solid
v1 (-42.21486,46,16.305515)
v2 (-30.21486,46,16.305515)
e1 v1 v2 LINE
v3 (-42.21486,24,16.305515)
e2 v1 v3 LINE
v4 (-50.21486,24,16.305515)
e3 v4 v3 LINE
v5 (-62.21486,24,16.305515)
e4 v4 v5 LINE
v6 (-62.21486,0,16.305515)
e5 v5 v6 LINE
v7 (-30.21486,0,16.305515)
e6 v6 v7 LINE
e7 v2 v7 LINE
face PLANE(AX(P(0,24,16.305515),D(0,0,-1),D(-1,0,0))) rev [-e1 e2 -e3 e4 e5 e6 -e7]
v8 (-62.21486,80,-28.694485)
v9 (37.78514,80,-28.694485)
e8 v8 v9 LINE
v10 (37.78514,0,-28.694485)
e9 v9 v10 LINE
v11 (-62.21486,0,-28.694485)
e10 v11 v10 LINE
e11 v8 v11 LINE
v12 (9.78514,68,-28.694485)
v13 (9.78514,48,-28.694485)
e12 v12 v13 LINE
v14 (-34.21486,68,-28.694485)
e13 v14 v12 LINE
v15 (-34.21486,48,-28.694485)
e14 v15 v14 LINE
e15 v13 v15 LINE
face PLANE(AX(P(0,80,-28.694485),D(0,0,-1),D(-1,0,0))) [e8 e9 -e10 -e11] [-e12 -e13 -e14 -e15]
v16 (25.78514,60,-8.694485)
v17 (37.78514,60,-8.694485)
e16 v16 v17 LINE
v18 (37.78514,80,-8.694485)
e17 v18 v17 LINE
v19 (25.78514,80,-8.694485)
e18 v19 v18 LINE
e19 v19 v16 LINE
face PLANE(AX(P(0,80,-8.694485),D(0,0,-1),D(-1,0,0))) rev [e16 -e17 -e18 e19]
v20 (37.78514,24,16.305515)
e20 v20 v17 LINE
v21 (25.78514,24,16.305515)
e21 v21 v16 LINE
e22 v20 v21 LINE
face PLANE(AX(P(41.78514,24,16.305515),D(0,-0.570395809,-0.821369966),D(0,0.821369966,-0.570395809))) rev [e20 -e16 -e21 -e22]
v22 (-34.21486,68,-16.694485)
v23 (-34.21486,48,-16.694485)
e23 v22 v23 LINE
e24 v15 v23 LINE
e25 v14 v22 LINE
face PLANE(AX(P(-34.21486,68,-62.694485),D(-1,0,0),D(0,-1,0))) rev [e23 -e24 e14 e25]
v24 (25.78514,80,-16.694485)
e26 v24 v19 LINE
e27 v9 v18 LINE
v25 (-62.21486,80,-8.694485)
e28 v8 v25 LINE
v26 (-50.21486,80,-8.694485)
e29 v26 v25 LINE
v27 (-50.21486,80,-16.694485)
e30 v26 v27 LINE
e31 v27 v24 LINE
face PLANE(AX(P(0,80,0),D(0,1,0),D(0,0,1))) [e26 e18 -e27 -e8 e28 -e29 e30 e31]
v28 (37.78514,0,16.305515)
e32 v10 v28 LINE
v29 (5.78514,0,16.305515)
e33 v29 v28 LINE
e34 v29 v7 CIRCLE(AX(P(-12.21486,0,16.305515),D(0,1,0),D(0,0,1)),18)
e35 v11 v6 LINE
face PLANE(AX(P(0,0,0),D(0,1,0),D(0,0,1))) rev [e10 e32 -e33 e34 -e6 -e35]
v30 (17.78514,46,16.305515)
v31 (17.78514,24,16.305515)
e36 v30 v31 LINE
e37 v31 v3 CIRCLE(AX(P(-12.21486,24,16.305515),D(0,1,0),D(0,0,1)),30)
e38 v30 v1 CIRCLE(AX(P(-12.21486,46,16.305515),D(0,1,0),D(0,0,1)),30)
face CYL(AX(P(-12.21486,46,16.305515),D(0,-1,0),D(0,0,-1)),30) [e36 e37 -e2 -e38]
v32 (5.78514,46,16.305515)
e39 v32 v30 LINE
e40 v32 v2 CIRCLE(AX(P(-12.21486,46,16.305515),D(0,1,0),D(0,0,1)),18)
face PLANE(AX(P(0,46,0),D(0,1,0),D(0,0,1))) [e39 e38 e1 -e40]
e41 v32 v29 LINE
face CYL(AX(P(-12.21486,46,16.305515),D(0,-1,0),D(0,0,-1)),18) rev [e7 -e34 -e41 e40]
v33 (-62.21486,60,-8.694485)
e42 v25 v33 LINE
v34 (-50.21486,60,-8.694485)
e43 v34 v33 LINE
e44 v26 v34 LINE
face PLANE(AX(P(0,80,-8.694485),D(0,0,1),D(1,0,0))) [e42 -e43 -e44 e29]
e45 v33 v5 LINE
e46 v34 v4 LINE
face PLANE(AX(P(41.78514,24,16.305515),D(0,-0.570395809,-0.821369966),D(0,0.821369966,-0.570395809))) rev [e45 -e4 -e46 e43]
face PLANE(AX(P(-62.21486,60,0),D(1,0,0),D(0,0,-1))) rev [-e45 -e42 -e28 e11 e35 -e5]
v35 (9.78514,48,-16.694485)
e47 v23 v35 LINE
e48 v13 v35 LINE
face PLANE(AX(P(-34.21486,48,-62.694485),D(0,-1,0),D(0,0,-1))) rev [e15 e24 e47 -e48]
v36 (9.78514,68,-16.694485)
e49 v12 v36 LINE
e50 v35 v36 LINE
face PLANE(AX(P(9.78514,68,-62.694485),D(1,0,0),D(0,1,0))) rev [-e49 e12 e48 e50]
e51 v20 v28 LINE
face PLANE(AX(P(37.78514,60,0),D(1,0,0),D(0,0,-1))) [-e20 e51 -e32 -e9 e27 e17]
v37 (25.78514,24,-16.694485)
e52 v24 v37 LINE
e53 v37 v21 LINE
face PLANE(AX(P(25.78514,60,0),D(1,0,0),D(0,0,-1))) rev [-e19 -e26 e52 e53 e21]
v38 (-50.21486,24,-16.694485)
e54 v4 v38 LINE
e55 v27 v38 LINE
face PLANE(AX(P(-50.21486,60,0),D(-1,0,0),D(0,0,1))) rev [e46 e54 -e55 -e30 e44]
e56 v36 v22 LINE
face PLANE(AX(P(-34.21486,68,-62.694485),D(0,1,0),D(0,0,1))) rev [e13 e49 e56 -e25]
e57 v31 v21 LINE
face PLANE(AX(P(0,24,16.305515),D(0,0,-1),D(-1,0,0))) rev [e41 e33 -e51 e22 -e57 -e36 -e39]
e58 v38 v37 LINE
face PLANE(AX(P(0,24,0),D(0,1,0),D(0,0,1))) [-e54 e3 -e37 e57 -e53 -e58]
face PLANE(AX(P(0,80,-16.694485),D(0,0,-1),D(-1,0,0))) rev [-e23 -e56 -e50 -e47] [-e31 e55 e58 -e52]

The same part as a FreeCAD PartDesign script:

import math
import FreeCAD as App
import Part
import Sketcher


def add_polygon(sketch, points):
    """Adds a closed chain of lines whose ends are joined by coincident constraints."""
    first, n = sketch.GeometryCount, len(points)
    for a, b in zip(points, points[1:] + points[:1]):
        sketch.addGeometry(Part.LineSegment(App.Vector(*a, 0), App.Vector(*b, 0)), False)
    for i in range(n):
        sketch.addConstraint(Sketcher.Constraint("Coincident", first + i, 2, first + (i + 1) % n, 1))

doc = App.newDocument("Part")
body = doc.addObject("PartDesign::Body", "Body")

sketch1 = body.newObject("Sketcher::SketchObject", "Sketch")
sketch1.AttachmentSupport = (doc.getObject("XZ_Plane"), [""])
sketch1.MapMode = "FlatFace"
sketch1.addGeometry([
    Part.LineSegment(App.Vector(-50.21486, 16.305515, 0), App.Vector(-42.21486, 16.305515, 0)),
    Part.ArcOfCircle(Part.Circle(App.Vector(-12.21486, 16.305515, 0), App.Vector(0, 0, 1), 30), math.radians(180), math.radians(360)),
    Part.LineSegment(App.Vector(17.78514, 16.305515, 0), App.Vector(25.78514, 16.305515, 0)),
    Part.LineSegment(App.Vector(25.78514, 16.305515, 0), App.Vector(25.78514, -16.694485, 0)),
    Part.LineSegment(App.Vector(25.78514, -16.694485, 0), App.Vector(-50.21486, -16.694485, 0)),
    Part.LineSegment(App.Vector(-50.21486, -16.694485, 0), App.Vector(-50.21486, 16.305515, 0)),
], False)
sketch1.addConstraint([
    Sketcher.Constraint("Coincident", 0, 2, 1, 1),
    Sketcher.Constraint("Coincident", 1, 2, 2, 1),
    Sketcher.Constraint("Coincident", 2, 2, 3, 1),
    Sketcher.Constraint("Coincident", 3, 2, 4, 1),
    Sketcher.Constraint("Coincident", 4, 2, 5, 1),
    Sketcher.Constraint("Coincident", 5, 2, 0, 1),
    Sketcher.Constraint("Horizontal", 0),
    Sketcher.Constraint("Horizontal", 2),
    Sketcher.Constraint("Vertical", 3),
    Sketcher.Constraint("Horizontal", 4),
    Sketcher.Constraint("Vertical", 5),
    Sketcher.Constraint("Horizontal", 1, 3, 0, 2),
    Sketcher.Constraint("Horizontal", 0, 2, 1, 2),
    Sketcher.Constraint("Equal", 0, 2),
    Sketcher.Constraint("Radius", 1, 30.0),
    Sketcher.Constraint("DistanceX", 0, 1, 0, 2, 8.0),
    Sketcher.Constraint("DistanceY", 3, 2, 3, 1, 33.0),
    Sketcher.Constraint("DistanceX", 1, 3, -1, 1, 12.21486),
    Sketcher.Constraint("DistanceY", -1, 1, 1, 3, 16.305515),
])
pad1 = body.newObject("PartDesign::Pad", "Pad")
pad1.Profile = sketch1
pad1.Length = 24
pad1.Reversed = True

sketch2 = body.newObject("Sketcher::SketchObject", "Sketch001")
sketch2.AttachmentSupport = (doc.getObject("XZ_Plane"), [""])
sketch2.MapMode = "FlatFace"
add_polygon(sketch2, [(-62.21486, -8.694485), (-62.21486, 16.305515), (-50.21486, 16.305515), (-50.21486, -8.694485)])
add_polygon(sketch2, [(25.78514, -8.694485), (25.78514, 16.305515), (37.78514, 16.305515), (37.78514, -8.694485)])
sketch2.addConstraint([
    Sketcher.Constraint("Vertical", 0),
    Sketcher.Constraint("Horizontal", 1),
    Sketcher.Constraint("Vertical", 2),
    Sketcher.Constraint("Horizontal", 3),
    Sketcher.Constraint("Vertical", 4),
    Sketcher.Constraint("Horizontal", 5),
    Sketcher.Constraint("Vertical", 6),
    Sketcher.Constraint("Horizontal", 7),
    Sketcher.Constraint("Horizontal", 1, 2, 4, 2),
    Sketcher.Constraint("Horizontal", 3, 2, 6, 2),
    Sketcher.Constraint("Equal", 3, 5),
    Sketcher.Constraint("DistanceX", 1, 1, 1, 2, 12.0),
    Sketcher.Constraint("DistanceY", 0, 1, 0, 2, 25.0),
    Sketcher.Constraint("DistanceX", 1, 2, 4, 2, 76.0),
    Sketcher.Constraint("DistanceX", 0, 2, -1, 1, 62.21486),
    Sketcher.Constraint("DistanceY", -1, 1, 0, 2, 16.305515),
])
pad2 = body.newObject("PartDesign::Pad", "Pad001")
pad2.Profile = sketch2
pad2.Length = 60
pad2.Reversed = True

sketch3 = body.newObject("Sketcher::SketchObject", "Sketch002")
sketch3.AttachmentSupport = (doc.getObject("XZ_Plane"), [""])
sketch3.MapMode = "FlatFace"
add_polygon(sketch3, [(-62.21486, -28.694485), (-62.21486, -8.694485), (-50.21486, -8.694485), (-50.21486, -16.694485), (25.78514, -16.694485), (25.78514, -8.694485), (37.78514, -8.694485), (37.78514, -28.694485)])
sketch3.addConstraint([
    Sketcher.Constraint("Vertical", 0),
    Sketcher.Constraint("Horizontal", 1),
    Sketcher.Constraint("Vertical", 2),
    Sketcher.Constraint("Horizontal", 3),
    Sketcher.Constraint("Vertical", 4),
    Sketcher.Constraint("Horizontal", 5),
    Sketcher.Constraint("Vertical", 6),
    Sketcher.Constraint("Horizontal", 7),
    Sketcher.Constraint("Horizontal", 1, 2, 4, 2),
    Sketcher.Constraint("Equal", 1, 5),
    Sketcher.Constraint("DistanceX", 1, 1, 1, 2, 12.0),
    Sketcher.Constraint("DistanceX", 3, 1, 3, 2, 76.0),
    Sketcher.Constraint("DistanceY", 0, 1, 0, 2, 20.0),
    Sketcher.Constraint("DistanceY", 2, 2, 2, 1, 8.0),
    Sketcher.Constraint("DistanceX", 0, 2, -1, 1, 62.21486),
    Sketcher.Constraint("DistanceY", 0, 2, -1, 1, 8.694485),
])
pad3 = body.newObject("PartDesign::Pad", "Pad002")
pad3.Profile = sketch3
pad3.Length = 80
pad3.Reversed = True

sketch4 = body.newObject("Sketcher::SketchObject", "Sketch003")
sketch4.AttachmentSupport = (doc.getObject("YZ_Plane"), [""])
sketch4.MapMode = "FlatFace"
sketch4.AttachmentOffset = App.Placement(App.Vector(0, 0, -62.21486), App.Rotation())
add_polygon(sketch4, [(60, -8.694485), (24, 16.305515), (60, 16.305515)])
sketch4.addConstraint([
    Sketcher.Constraint("Horizontal", 1),
    Sketcher.Constraint("Vertical", 2),
    Sketcher.Constraint("DistanceX", 1, 1, 1, 2, 36.0),
    Sketcher.Constraint("DistanceY", 2, 2, 2, 1, 25.0),
    Sketcher.Constraint("DistanceX", -1, 1, 0, 2, 24.0),
    Sketcher.Constraint("DistanceY", -1, 1, 0, 2, 16.305515),
])
pocket1 = body.newObject("PartDesign::Pocket", "Pocket")
pocket1.Profile = sketch4
pocket1.Length = 104
pocket1.Reversed = True

sketch5 = body.newObject("Sketcher::SketchObject", "Sketch004")
sketch5.AttachmentSupport = (doc.getObject("XZ_Plane"), [""])
sketch5.MapMode = "FlatFace"
sketch5.addGeometry([
    Part.ArcOfCircle(Part.Circle(App.Vector(-12.21486, 16.305515, 0), App.Vector(0, 0, 1), 30), math.radians(180), math.radians(360)),
    Part.LineSegment(App.Vector(-42.21486, 16.305515, 0), App.Vector(-30.21486, 16.305515, 0)),
    Part.ArcOfCircle(Part.Circle(App.Vector(-12.21486, 16.305515, 0), App.Vector(0, 0, 1), 18), math.radians(180), math.radians(360)),
    Part.LineSegment(App.Vector(5.78514, 16.305515, 0), App.Vector(17.78514, 16.305515, 0)),
], False)
sketch5.addConstraint([
    Sketcher.Constraint("Coincident", 0, 1, 1, 1),
    Sketcher.Constraint("Coincident", 1, 2, 2, 1),
    Sketcher.Constraint("Coincident", 2, 2, 3, 1),
    Sketcher.Constraint("Coincident", 3, 2, 0, 2),
    Sketcher.Constraint("Horizontal", 1),
    Sketcher.Constraint("Horizontal", 3),
    Sketcher.Constraint("Coincident", 2, 3, 0, 3),
    Sketcher.Constraint("Horizontal", 2, 3, 0, 1),
    Sketcher.Constraint("Horizontal", 1, 2, 2, 2),
    Sketcher.Constraint("Radius", 0, 30.0),
    Sketcher.Constraint("Radius", 2, 18.0),
    Sketcher.Constraint("DistanceX", 0, 3, -1, 1, 12.21486),
    Sketcher.Constraint("DistanceY", -1, 1, 0, 3, 16.305515),
])
pad4 = body.newObject("PartDesign::Pad", "Pad003")
pad4.Profile = sketch5
pad4.Length = 46
pad4.Reversed = True

sketch6 = body.newObject("Sketcher::SketchObject", "Sketch005")
sketch6.AttachmentSupport = (doc.getObject("XY_Plane"), [""])
sketch6.MapMode = "FlatFace"
sketch6.AttachmentOffset = App.Placement(App.Vector(0, 0, -16.694485), App.Rotation())
add_polygon(sketch6, [(-34.21486, 68), (-34.21486, 48), (9.78514, 48), (9.78514, 68)])
sketch6.addConstraint([
    Sketcher.Constraint("Vertical", 0),
    Sketcher.Constraint("Horizontal", 1),
    Sketcher.Constraint("Vertical", 2),
    Sketcher.Constraint("Horizontal", 3),
    Sketcher.Constraint("DistanceX", 1, 1, 1, 2, 44.0),
    Sketcher.Constraint("DistanceY", 0, 2, 0, 1, 20.0),
    Sketcher.Constraint("DistanceY", -1, 1, 0, 2, 48.0),
    Sketcher.Constraint("DistanceX", 0, 2, -1, 1, 34.21486),
])
pocket2 = body.newObject("PartDesign::Pocket", "Pocket001")
pocket2.Profile = sketch6
pocket2.Length = 46

doc.recompute()
